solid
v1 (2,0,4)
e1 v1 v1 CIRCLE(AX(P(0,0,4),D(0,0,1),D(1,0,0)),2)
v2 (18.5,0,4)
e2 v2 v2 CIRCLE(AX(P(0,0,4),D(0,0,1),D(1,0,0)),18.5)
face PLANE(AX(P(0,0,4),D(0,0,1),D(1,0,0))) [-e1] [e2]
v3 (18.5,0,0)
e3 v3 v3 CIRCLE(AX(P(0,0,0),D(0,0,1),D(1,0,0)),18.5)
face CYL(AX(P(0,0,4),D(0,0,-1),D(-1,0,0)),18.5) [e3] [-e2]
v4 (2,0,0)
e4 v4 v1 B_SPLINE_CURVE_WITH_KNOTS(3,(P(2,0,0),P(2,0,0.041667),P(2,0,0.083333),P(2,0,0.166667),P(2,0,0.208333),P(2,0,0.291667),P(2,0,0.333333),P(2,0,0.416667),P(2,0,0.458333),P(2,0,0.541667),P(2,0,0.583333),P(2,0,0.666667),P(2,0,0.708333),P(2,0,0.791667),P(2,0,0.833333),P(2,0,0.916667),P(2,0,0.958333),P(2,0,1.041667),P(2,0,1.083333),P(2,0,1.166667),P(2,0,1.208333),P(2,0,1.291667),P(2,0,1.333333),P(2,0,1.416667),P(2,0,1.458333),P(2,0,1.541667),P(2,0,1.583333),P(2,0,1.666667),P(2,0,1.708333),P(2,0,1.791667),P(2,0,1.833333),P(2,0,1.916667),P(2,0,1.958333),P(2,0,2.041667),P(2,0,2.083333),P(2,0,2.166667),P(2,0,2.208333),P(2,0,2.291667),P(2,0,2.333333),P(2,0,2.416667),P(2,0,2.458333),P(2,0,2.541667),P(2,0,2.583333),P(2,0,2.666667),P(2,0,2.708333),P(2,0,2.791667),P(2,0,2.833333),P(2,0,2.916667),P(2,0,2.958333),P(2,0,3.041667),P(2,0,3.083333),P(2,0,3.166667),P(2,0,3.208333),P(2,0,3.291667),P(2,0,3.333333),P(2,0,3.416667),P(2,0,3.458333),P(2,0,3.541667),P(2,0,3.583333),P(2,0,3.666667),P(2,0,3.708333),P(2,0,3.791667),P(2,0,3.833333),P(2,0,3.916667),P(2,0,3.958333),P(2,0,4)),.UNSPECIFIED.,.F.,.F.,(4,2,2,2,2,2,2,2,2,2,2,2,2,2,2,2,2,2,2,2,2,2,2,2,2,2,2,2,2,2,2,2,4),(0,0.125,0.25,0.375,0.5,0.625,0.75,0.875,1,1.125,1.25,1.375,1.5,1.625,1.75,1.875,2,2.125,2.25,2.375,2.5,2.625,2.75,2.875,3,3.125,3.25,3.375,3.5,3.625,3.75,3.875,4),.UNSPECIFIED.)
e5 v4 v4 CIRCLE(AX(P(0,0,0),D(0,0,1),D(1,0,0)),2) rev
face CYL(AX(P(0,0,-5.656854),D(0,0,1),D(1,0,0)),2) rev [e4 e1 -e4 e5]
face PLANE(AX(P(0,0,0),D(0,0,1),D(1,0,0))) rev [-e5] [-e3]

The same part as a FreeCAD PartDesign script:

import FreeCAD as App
import Part
import Sketcher
from FreeCAD import Vector

doc = App.newDocument("Part")
params = doc.addObject("Spreadsheet::Sheet", "Params")
for row, (alias, value) in enumerate([
    ("sketch1_diameter", "37 mm"),
    ("pad1_length", "4 mm"),
    ("sketch2_diameter", "4 mm"),
    ("pocket1_length", "4 mm"),
], start=1):
    params.set(f"A{row}", alias)
    params.set(f"B{row}", "=" + value)
    params.setAlias(f"B{row}", alias)

body = doc.addObject("PartDesign::Body", "Body")

# Sketch on XY plane
sketch1 = doc.addObject("Sketcher::SketchObject", "Sketch")
body.addObject(sketch1)
sketch1.AttachmentSupport = (doc.XY_Plane, [""])
sketch1.MapMode = "FlatFace"
sketch1.addGeometry(Part.Circle(Vector(0, 0, 0), Vector(0, 0, 1), 18), False)
sketch1.addConstraint([
    Sketcher.Constraint("Coincident", 0, 3, -1, 1),
    Sketcher.Constraint("Diameter", 0, 37.0),
])
sketch1.setExpression("Constraints[1]", "Params.sketch1_diameter")
pad1 = doc.addObject("PartDesign::Pad", "Pad")
body.addObject(pad1)
pad1.Profile = sketch1
pad1.setExpression("Length", "Params.pad1_length")

# Sketch on XY plane
sketch2 = doc.addObject("Sketcher::SketchObject", "Sketch001")
body.addObject(sketch2)
sketch2.AttachmentSupport = (doc.XY_Plane, [""])
sketch2.MapMode = "FlatFace"
sketch2.AttachmentOffset = App.Placement(Vector(0, 0, 4), App.Rotation())
sketch2.addGeometry(Part.Circle(Vector(0, 0, 0), Vector(0, 0, 1), 2), False)
sketch2.addConstraint([
    Sketcher.Constraint("Coincident", 0, 3, -1, 1),
    Sketcher.Constraint("Diameter", 0, 4.0),
])
sketch2.setExpression("Constraints[1]", "Params.sketch2_diameter")
pocket1 = doc.addObject("PartDesign::Pocket", "Pocket")
body.addObject(pocket1)
pocket1.Profile = sketch2
pocket1.setExpression("Length", "Params.pocket1_length")

doc.recompute()
